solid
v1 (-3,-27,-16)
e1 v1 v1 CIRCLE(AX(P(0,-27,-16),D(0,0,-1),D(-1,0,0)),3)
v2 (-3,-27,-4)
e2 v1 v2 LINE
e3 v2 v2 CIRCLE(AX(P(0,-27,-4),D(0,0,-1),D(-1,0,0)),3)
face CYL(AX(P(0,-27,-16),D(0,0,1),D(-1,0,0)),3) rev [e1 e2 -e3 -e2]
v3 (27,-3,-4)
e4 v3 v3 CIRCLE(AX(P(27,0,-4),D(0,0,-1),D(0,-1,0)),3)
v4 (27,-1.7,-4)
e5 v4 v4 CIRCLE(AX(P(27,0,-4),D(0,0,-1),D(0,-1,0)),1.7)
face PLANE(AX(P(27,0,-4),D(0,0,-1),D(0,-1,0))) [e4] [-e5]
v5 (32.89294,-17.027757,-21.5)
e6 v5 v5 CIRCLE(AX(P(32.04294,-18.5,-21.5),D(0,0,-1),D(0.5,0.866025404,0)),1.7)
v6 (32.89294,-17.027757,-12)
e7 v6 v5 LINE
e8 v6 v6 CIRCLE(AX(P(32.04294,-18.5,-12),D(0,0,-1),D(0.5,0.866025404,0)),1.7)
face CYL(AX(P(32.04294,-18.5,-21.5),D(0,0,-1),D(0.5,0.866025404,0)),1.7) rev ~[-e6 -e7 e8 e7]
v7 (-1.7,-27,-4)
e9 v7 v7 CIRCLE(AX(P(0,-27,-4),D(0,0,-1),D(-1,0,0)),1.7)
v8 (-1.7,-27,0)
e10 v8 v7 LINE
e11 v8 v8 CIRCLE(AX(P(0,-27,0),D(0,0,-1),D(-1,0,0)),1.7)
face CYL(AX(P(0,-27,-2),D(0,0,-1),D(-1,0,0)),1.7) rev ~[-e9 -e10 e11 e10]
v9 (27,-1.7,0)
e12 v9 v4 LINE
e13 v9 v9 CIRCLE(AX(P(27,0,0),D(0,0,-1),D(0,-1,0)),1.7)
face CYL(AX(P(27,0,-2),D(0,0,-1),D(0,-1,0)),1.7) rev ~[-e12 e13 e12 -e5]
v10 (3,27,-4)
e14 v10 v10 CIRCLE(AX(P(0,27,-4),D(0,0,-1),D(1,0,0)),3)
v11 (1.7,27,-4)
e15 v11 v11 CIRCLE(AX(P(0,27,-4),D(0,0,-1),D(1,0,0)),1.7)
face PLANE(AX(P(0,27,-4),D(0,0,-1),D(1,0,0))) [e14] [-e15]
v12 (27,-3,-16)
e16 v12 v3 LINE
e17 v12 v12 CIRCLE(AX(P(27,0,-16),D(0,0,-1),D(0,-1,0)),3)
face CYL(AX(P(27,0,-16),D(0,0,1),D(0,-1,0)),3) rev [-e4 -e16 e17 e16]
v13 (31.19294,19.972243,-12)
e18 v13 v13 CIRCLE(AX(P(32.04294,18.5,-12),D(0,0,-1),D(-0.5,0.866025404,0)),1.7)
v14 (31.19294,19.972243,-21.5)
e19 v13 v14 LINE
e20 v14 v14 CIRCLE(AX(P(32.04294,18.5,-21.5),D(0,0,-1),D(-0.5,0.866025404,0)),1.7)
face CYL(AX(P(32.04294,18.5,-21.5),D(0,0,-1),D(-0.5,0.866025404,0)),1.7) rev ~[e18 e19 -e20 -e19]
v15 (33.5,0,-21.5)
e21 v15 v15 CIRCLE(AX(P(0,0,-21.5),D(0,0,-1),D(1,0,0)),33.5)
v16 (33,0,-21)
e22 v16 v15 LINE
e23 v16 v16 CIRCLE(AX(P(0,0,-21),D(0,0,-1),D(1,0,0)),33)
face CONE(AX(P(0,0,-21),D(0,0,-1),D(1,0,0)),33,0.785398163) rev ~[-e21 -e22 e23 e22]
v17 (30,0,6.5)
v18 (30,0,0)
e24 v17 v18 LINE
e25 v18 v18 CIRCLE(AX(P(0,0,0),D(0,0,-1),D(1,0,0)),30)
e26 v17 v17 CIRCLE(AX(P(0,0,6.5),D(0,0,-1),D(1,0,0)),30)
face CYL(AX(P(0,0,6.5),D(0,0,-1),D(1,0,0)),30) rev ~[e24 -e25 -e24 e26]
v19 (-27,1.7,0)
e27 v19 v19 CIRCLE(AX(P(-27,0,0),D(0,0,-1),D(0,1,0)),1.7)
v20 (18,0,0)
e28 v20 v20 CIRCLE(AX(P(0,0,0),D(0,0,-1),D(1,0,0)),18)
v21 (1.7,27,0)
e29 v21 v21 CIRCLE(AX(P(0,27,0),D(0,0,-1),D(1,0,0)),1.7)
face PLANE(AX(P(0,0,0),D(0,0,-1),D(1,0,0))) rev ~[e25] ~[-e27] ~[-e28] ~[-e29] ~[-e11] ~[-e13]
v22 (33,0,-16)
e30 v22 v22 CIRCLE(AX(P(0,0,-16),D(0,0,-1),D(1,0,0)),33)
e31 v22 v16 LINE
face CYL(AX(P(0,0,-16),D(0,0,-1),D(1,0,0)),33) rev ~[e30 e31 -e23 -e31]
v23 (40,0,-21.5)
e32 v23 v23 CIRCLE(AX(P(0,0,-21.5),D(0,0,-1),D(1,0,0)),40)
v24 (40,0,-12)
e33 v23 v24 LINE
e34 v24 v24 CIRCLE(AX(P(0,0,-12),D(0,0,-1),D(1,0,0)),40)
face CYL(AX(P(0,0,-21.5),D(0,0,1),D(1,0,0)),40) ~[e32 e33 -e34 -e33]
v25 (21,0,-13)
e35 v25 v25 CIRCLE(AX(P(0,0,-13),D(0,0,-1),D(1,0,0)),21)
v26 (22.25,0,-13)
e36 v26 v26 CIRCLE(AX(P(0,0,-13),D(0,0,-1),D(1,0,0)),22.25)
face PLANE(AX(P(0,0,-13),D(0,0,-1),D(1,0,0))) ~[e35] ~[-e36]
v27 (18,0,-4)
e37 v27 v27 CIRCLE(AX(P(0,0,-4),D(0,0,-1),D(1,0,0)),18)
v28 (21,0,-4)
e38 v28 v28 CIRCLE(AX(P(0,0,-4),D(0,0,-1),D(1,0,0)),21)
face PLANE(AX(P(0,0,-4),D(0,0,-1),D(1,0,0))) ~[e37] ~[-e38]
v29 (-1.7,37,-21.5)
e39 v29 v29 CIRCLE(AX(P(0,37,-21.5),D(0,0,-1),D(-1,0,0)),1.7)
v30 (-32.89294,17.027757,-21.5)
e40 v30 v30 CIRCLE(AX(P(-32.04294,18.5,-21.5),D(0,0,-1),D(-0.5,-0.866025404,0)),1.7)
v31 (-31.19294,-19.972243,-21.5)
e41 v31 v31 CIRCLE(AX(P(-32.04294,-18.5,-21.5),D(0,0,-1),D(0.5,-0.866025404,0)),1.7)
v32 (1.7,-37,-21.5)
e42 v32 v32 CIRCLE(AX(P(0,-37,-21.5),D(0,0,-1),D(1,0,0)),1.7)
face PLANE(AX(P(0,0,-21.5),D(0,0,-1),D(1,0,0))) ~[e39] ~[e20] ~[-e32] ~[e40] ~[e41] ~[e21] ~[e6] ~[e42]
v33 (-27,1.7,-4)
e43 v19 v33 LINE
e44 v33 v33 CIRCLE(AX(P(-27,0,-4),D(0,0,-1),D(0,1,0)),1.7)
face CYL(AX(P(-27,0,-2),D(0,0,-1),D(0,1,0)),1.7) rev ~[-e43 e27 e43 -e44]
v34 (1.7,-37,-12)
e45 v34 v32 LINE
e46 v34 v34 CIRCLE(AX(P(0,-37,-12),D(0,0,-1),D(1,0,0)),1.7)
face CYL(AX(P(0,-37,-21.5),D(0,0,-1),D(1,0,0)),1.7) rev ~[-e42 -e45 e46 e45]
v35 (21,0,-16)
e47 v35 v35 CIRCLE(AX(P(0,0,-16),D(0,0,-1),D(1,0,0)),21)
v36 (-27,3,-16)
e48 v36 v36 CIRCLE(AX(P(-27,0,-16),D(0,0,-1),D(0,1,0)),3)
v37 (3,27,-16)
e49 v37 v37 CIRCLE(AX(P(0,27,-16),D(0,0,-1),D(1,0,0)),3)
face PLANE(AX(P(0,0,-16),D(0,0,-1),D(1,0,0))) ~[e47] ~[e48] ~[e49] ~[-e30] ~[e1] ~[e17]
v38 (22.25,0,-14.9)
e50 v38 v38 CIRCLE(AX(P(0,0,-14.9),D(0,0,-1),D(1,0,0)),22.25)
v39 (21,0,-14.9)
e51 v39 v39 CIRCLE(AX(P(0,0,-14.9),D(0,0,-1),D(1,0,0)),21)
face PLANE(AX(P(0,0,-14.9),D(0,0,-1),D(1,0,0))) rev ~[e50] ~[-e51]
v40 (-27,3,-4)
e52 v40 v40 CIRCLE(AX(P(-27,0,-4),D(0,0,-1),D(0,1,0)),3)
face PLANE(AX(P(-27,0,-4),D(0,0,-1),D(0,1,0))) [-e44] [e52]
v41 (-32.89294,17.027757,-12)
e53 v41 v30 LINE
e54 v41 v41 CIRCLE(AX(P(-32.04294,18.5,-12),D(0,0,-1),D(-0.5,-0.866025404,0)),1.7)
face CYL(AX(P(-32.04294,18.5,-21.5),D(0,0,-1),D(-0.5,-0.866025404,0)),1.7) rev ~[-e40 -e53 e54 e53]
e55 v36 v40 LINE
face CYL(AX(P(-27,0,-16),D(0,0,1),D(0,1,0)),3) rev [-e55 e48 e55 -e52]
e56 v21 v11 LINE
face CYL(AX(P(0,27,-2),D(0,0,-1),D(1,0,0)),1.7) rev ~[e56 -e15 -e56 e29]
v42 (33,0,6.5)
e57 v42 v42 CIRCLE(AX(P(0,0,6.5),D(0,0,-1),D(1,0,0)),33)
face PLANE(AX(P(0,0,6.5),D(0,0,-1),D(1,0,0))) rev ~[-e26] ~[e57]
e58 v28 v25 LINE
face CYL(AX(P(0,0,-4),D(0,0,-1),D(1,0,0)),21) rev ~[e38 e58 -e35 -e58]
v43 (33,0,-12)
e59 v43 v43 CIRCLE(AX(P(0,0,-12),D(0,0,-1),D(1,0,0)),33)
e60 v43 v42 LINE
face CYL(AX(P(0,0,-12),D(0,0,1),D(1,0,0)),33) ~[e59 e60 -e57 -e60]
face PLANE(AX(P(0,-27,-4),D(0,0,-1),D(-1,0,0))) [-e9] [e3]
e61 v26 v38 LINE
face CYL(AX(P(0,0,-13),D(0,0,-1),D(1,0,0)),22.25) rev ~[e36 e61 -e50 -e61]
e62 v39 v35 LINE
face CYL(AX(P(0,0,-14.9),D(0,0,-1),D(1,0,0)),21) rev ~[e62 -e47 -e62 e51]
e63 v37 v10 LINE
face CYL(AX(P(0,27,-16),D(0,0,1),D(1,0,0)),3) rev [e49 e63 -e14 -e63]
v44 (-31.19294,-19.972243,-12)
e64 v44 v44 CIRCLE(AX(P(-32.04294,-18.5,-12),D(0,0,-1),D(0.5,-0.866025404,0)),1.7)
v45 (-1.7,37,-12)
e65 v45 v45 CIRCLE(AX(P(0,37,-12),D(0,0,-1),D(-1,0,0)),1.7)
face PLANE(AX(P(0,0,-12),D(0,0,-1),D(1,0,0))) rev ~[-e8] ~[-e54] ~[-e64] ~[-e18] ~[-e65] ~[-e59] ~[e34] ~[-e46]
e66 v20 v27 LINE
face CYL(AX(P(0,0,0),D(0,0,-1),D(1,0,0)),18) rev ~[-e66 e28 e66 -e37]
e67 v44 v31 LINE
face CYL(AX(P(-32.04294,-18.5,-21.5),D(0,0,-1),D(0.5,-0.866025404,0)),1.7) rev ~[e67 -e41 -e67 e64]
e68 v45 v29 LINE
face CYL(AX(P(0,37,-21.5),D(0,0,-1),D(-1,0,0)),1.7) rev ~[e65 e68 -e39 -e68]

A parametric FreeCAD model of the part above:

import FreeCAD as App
import Part
import Sketcher
Q = App.Units.Quantity


def edges_at(feature, points):
    """Names of the edges that pass closest to the given points."""
    edges = feature.Shape.Edges
    near = lambda p: min(range(len(edges)), key=lambda i: edges[i].distToShape(Part.Vertex(*p))[0])
    return sorted({f"Edge{near(p) + 1}" for p in points})

doc = App.newDocument("Part")
body = doc.addObject("PartDesign::Body", "Body")

# Sketch on YZ plane
sketch1 = body.newObject("Sketcher::SketchObject", "Sketch")
sketch1.AttachmentSupport = (doc.getObject("YZ_Plane"), [""])
sketch1.MapMode = "FlatFace"
sketch1.addGeometry(Part.LineSegment(App.Vector(30, 0, 0), App.Vector(18, 0, 0)), False)
sketch1.addGeometry(Part.LineSegment(App.Vector(18, 0, 0), App.Vector(18, -4, 0)), False)
sketch1.addGeometry(Part.LineSegment(App.Vector(18, -4, 0), App.Vector(21, -4, 0)), False)
sketch1.addGeometry(Part.LineSegment(App.Vector(21, -4, 0), App.Vector(21, -13, 0)), False)
sketch1.addGeometry(Part.LineSegment(App.Vector(21, -13, 0), App.Vector(22.2, -13, 0)), False)
sketch1.addGeometry(Part.LineSegment(App.Vector(22.2, -13, 0), App.Vector(22.2, -14.9, 0)), False)
sketch1.addGeometry(Part.LineSegment(App.Vector(22.2, -14.9, 0), App.Vector(21, -14.9, 0)), False)
sketch1.addGeometry(Part.LineSegment(App.Vector(21, -14.9, 0), App.Vector(21, -16, 0)), False)
sketch1.addGeometry(Part.LineSegment(App.Vector(21, -16, 0), App.Vector(33, -16, 0)), False)
sketch1.addGeometry(Part.LineSegment(App.Vector(33, -16, 0), App.Vector(33, -21.5, 0)), False)
sketch1.addGeometry(Part.LineSegment(App.Vector(33, -21.5, 0), App.Vector(40, -21.5, 0)), False)
sketch1.addGeometry(Part.LineSegment(App.Vector(40, -21.5, 0), App.Vector(40, -12, 0)), False)
sketch1.addGeometry(Part.LineSegment(App.Vector(40, -12, 0), App.Vector(33, -12, 0)), False)
sketch1.addGeometry(Part.LineSegment(App.Vector(33, -12, 0), App.Vector(33, 6.5, 0)), False)
sketch1.addGeometry(Part.LineSegment(App.Vector(33, 6.5, 0), App.Vector(30, 6.5, 0)), False)
sketch1.addGeometry(Part.LineSegment(App.Vector(30, 6.5, 0), App.Vector(30, 0, 0)), False)
sketch1.addConstraint(Sketcher.Constraint("Coincident", 0, 2, 1, 1))
sketch1.addConstraint(Sketcher.Constraint("Coincident", 1, 2, 2, 1))
sketch1.addConstraint(Sketcher.Constraint("Coincident", 2, 2, 3, 1))
sketch1.addConstraint(Sketcher.Constraint("Coincident", 3, 2, 4, 1))
sketch1.addConstraint(Sketcher.Constraint("Coincident", 4, 2, 5, 1))
sketch1.addConstraint(Sketcher.Constraint("Coincident", 5, 2, 6, 1))
sketch1.addConstraint(Sketcher.Constraint("Coincident", 6, 2, 7, 1))
sketch1.addConstraint(Sketcher.Constraint("Coincident", 7, 2, 8, 1))
sketch1.addConstraint(Sketcher.Constraint("Coincident", 8, 2, 9, 1))
sketch1.addConstraint(Sketcher.Constraint("Coincident", 9, 2, 10, 1))
sketch1.addConstraint(Sketcher.Constraint("Coincident", 10, 2, 11, 1))
sketch1.addConstraint(Sketcher.Constraint("Coincident", 11, 2, 12, 1))
sketch1.addConstraint(Sketcher.Constraint("Coincident", 12, 2, 13, 1))
sketch1.addConstraint(Sketcher.Constraint("Coincident", 13, 2, 14, 1))
sketch1.addConstraint(Sketcher.Constraint("Coincident", 14, 2, 15, 1))
sketch1.addConstraint(Sketcher.Constraint("Coincident", 15, 2, 0, 1))
sketch1.addConstraint(Sketcher.Constraint("Horizontal", 0))
sketch1.addConstraint(Sketcher.Constraint("Vertical", 1))
sketch1.addConstraint(Sketcher.Constraint("Horizontal", 2))
sketch1.addConstraint(Sketcher.Constraint("Vertical", 3))
sketch1.addConstraint(Sketcher.Constraint("Horizontal", 4))
sketch1.addConstraint(Sketcher.Constraint("Vertical", 5))
sketch1.addConstraint(Sketcher.Constraint("Horizontal", 6))
sketch1.addConstraint(Sketcher.Constraint("Vertical", 7))
sketch1.addConstraint(Sketcher.Constraint("Horizontal", 8))
sketch1.addConstraint(Sketcher.Constraint("Vertical", 9))
sketch1.addConstraint(Sketcher.Constraint("Horizontal", 10))
sketch1.addConstraint(Sketcher.Constraint("Vertical", 11))
sketch1.addConstraint(Sketcher.Constraint("Horizontal", 12))
sketch1.addConstraint(Sketcher.Constraint("Vertical", 13))
sketch1.addConstraint(Sketcher.Constraint("Horizontal", 14))
sketch1.addConstraint(Sketcher.Constraint("Vertical", 15))
sketch1.addConstraint(Sketcher.Constraint("PointOnObject", 0, 2, -1))
sketch1.addConstraint(Sketcher.Constraint("Vertical", 3, 2, 6, 2))
sketch1.addConstraint(Sketcher.Constraint("Vertical", 9, 2, 12, 2))
sketch1.addConstraint(Sketcher.Constraint("Equal", 0, 8))
sketch1.addConstraint(Sketcher.Constraint("DistanceX", 0, 2, 0, 1, Q("12 mm")))
sketch1.addConstraint(Sketcher.Constraint("DistanceX", 2, 1, 2, 2, Q("3 mm")))
sketch1.addConstraint(Sketcher.Constraint("DistanceX", 10, 1, 10, 2, Q("7 mm")))
sketch1.addConstraint(Sketcher.Constraint("DistanceY", 1, 2, 1, 1, Q("4 mm")))
sketch1.addConstraint(Sketcher.Constraint("DistanceY", 3, 2, 3, 1, Q("9 mm")))
sketch1.addConstraint(Sketcher.Constraint("DistanceY", 5, 2, 5, 1, Q("1.9 mm")))
sketch1.addConstraint(Sketcher.Constraint("DistanceY", 7, 2, 7, 1, Q("1.1 mm")))
sketch1.addConstraint(Sketcher.Constraint("DistanceY", 9, 2, 9, 1, Q("5.5 mm")))
sketch1.addConstraint(Sketcher.Constraint("DistanceY", 11, 1, 11, 2, Q("9.5 mm")))
sketch1.addConstraint(Sketcher.Constraint("DistanceY", 13, 1, 13, 2, Q("18.5 mm")))
sketch1.addConstraint(Sketcher.Constraint("DistanceX", -1, 1, 0, 2, Q("18 mm")))
sketch1.addConstraint(Sketcher.Constraint("DistanceX", 4, 1, 4, 2, Q("1.25 mm")))
revolution = body.newObject("PartDesign::Revolution", "Revolution")
revolution.Profile = sketch1
revolution.ReferenceAxis = (sketch1, ["V_Axis"])
revolution.Angle = 360

# Sketch on YZ plane
sketch2 = body.newObject("Sketcher::SketchObject", "Sketch001")
sketch2.AttachmentSupport = (doc.getObject("YZ_Plane"), [""])
sketch2.MapMode = "FlatFace"
sketch2.addGeometry(Part.LineSegment(App.Vector(27, -16, 0), App.Vector(30, -16, 0)), False)
sketch2.addGeometry(Part.LineSegment(App.Vector(30, -16, 0), App.Vector(30, -4, 0)), False)
sketch2.addGeometry(Part.LineSegment(App.Vector(30, -4, 0), App.Vector(28.7, -4, 0)), False)
sketch2.addGeometry(Part.LineSegment(App.Vector(28.7, -4, 0), App.Vector(28.7, 0, 0)), False)
sketch2.addGeometry(Part.LineSegment(App.Vector(28.7, 0, 0), App.Vector(27, 0, 0)), False)
sketch2.addGeometry(Part.LineSegment(App.Vector(27, 0, 0), App.Vector(27, -16, 0)), False)
sketch2.addGeometry(Part.LineSegment(App.Vector(27, 0, 0), App.Vector(27, -16, 0)), True)  # axis
sketch2.addConstraint(Sketcher.Constraint("Coincident", 0, 2, 1, 1))
sketch2.addConstraint(Sketcher.Constraint("Coincident", 1, 2, 2, 1))
sketch2.addConstraint(Sketcher.Constraint("Coincident", 2, 2, 3, 1))
sketch2.addConstraint(Sketcher.Constraint("Coincident", 3, 2, 4, 1))
sketch2.addConstraint(Sketcher.Constraint("Coincident", 4, 2, 5, 1))
sketch2.addConstraint(Sketcher.Constraint("Coincident", 5, 2, 0, 1))
sketch2.addConstraint(Sketcher.Constraint("Horizontal", 0))
sketch2.addConstraint(Sketcher.Constraint("Vertical", 1))
sketch2.addConstraint(Sketcher.Constraint("Horizontal", 2))
sketch2.addConstraint(Sketcher.Constraint("Vertical", 3))
sketch2.addConstraint(Sketcher.Constraint("Horizontal", 4))
sketch2.addConstraint(Sketcher.Constraint("Vertical", 5))
sketch2.addConstraint(Sketcher.Constraint("Vertical", 6))
sketch2.addConstraint(Sketcher.Constraint("Coincident", 6, 1, 4, 2))
sketch2.addConstraint(Sketcher.Constraint("PointOnObject", 3, 2, -1))
sketch2.addConstraint(Sketcher.Constraint("Horizontal", 0, 2, 6, 2))
sketch2.addConstraint(Sketcher.Constraint("DistanceX", 0, 1, 0, 2, Q("3 mm")))
sketch2.addConstraint(Sketcher.Constraint("DistanceY", 1, 1, 1, 2, Q("12 mm")))
sketch2.addConstraint(Sketcher.Constraint("DistanceY", 3, 1, 3, 2, Q("4 mm")))
sketch2.addConstraint(Sketcher.Constraint("DistanceX", 2, 2, 2, 1, Q("1.3 mm")))
sketch2.addConstraint(Sketcher.Constraint("DistanceX", -1, 1, 0, 2, Q("30 mm")))
groove = body.newObject("PartDesign::Groove", "Groove")
groove.Profile = sketch2
groove.ReferenceAxis = (sketch2, ["Axis0"])
groove.Angle = 360

# Sketch on XY plane
sketch3 = body.newObject("Sketcher::SketchObject", "Sketch002")
sketch3.AttachmentSupport = (doc.getObject("XY_Plane"), [""])
sketch3.MapMode = "FlatFace"
sketch3.AttachmentOffset = App.Placement(App.Vector(0, 0, -21.5), App.Rotation())
sketch3.addGeometry(Part.Circle(App.Vector(0, 37, 0), App.Vector(0, 0, 1), 1.7), False)
sketch3.addConstraint(Sketcher.Constraint("PointOnObject", 0, 3, -2))
sketch3.addConstraint(Sketcher.Constraint("Diameter", 0, Q("3.4 mm")))
sketch3.addConstraint(Sketcher.Constraint("DistanceY", -1, 1, 0, 3, Q("37 mm")))
pocket1 = body.newObject("PartDesign::Pocket", "Pocket")
pocket1.Profile = sketch3
pocket1.Length = 128.237871
pocket1.Midplane = True
doc.recompute()

polarpattern = body.newObject("PartDesign::PolarPattern", "PolarPattern")
polarpattern.Originals = [pocket1]
polarpattern.Axis = (doc.getObject("Z_Axis"), [""])
polarpattern.Angle = 360
polarpattern.Occurrences = 6
body.Tip = polarpattern
doc.recompute()

chamfer = body.newObject("PartDesign::Chamfer", "Chamfer")
chamfer.Base = (polarpattern, edges_at(polarpattern, [(-33, 0, -21.5)]))
chamfer.Size = 0.5
doc.recompute()

polarpattern2 = body.newObject("PartDesign::PolarPattern", "PolarPattern001")
polarpattern2.Originals = [groove]
polarpattern2.Axis = (doc.getObject("Z_Axis"), [""])
polarpattern2.Angle = 360
polarpattern2.Occurrences = 4
body.Tip = polarpattern2

doc.recompute()
